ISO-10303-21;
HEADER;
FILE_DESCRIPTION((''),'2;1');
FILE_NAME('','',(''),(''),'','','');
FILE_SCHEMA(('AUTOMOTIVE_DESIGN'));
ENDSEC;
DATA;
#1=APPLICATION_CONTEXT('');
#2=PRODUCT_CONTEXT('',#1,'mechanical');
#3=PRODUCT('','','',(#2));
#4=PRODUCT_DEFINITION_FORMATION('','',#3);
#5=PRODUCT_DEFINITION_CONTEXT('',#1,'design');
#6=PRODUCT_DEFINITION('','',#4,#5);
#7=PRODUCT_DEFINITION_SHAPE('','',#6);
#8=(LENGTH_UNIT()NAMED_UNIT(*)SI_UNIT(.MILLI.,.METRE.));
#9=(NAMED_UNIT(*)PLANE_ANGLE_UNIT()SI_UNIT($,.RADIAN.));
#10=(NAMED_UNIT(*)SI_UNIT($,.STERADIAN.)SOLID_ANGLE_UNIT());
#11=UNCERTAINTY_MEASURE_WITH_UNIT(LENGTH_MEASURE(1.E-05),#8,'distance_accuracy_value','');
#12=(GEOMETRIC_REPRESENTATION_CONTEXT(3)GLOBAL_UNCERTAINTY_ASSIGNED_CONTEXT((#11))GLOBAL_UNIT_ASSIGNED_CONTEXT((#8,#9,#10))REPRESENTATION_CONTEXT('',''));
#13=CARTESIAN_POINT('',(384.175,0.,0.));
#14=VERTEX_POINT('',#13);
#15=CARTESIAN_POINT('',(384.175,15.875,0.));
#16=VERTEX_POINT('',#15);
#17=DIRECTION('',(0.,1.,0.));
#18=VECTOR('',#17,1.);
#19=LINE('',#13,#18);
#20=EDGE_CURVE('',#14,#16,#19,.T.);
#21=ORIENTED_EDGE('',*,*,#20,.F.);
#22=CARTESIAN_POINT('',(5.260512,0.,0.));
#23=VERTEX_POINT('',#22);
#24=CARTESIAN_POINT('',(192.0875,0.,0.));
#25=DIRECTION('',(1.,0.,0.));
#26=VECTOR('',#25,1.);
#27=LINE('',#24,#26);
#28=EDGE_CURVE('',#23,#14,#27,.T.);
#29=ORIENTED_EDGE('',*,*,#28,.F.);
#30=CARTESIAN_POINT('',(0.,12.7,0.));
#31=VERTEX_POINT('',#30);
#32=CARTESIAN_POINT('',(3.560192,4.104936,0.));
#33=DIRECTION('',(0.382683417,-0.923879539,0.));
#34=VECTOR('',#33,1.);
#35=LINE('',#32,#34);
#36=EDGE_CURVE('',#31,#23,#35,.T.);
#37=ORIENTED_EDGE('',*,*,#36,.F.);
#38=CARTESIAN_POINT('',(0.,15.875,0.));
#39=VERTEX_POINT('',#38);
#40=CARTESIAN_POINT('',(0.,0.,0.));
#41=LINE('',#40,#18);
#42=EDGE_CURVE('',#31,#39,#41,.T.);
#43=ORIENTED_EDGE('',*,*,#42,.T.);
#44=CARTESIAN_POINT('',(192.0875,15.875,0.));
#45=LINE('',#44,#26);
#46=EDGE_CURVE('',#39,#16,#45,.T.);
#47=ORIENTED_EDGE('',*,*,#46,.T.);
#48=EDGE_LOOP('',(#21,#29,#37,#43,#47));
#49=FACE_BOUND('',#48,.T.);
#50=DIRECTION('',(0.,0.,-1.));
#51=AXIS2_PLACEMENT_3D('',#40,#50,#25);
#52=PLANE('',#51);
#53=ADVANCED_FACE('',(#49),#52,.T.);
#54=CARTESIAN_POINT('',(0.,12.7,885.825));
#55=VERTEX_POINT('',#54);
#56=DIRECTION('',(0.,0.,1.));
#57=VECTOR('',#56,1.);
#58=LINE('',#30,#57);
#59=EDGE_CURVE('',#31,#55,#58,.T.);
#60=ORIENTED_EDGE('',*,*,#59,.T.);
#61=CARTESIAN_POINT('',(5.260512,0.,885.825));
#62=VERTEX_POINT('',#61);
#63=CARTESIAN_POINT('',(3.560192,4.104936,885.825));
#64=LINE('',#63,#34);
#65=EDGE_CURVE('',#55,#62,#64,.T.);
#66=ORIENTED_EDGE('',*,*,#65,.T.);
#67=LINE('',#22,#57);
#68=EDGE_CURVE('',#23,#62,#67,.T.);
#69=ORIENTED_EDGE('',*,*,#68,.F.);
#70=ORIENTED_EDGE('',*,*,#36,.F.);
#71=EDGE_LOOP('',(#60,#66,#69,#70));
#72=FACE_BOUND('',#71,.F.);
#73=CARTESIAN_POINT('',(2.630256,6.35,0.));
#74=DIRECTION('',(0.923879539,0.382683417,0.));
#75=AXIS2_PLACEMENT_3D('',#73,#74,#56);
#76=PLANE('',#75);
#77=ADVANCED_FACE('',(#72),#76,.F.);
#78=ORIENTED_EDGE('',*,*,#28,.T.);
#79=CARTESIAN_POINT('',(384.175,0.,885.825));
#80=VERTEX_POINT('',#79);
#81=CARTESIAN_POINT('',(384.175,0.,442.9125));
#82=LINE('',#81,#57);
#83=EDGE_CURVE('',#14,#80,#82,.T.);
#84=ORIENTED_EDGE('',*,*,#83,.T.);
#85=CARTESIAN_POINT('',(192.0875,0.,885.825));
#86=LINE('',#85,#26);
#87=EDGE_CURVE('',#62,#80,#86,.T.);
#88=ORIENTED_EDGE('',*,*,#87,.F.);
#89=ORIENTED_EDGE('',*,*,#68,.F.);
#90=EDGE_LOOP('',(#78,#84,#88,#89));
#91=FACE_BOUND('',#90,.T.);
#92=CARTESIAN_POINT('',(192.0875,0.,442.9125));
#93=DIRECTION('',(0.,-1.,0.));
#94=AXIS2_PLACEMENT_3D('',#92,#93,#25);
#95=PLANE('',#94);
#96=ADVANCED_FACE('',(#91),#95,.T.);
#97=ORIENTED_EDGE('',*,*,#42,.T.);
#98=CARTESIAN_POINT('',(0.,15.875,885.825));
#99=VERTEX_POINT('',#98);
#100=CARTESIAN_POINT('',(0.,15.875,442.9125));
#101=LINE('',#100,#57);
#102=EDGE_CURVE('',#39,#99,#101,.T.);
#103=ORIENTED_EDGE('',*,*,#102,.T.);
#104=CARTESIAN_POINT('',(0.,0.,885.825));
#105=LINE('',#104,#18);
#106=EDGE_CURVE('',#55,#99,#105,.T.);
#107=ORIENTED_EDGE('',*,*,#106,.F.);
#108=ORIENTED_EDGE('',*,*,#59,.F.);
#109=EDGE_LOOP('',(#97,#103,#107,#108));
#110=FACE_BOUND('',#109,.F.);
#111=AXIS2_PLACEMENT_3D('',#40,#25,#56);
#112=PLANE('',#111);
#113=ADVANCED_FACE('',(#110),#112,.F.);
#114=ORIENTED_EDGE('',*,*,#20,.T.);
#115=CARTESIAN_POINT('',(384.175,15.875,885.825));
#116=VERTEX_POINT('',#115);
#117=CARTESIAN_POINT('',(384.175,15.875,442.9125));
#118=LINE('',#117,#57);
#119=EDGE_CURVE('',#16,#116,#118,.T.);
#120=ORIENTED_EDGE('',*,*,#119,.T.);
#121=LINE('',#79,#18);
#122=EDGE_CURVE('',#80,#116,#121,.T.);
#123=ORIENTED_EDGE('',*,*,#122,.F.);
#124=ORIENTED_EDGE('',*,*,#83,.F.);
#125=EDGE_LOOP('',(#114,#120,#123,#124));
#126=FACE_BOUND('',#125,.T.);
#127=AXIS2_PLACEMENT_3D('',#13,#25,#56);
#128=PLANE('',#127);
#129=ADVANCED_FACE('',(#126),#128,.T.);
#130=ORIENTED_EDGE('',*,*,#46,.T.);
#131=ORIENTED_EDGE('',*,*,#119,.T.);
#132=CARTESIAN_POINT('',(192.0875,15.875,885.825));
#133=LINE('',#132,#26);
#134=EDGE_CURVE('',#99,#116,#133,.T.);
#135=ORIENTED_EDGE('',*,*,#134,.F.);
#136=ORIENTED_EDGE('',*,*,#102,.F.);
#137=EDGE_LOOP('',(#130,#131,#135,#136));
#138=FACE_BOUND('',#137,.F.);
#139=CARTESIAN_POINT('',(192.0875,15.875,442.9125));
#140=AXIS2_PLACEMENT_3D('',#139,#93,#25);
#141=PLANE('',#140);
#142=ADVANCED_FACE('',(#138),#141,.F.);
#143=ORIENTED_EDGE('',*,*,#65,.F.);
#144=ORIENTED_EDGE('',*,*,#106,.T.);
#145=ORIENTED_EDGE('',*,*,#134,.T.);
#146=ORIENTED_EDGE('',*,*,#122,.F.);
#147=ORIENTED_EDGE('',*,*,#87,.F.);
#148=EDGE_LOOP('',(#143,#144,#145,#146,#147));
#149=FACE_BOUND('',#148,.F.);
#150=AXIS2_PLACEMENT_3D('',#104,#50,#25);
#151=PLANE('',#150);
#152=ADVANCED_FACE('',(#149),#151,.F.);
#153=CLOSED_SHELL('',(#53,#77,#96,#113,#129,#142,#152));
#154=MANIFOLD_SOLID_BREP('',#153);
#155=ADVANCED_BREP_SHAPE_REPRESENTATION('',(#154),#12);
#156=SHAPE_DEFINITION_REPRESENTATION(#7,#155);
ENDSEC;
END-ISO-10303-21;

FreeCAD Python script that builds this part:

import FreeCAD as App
import Part
import Sketcher
from FreeCAD import Vector
Q = App.Units.Quantity


def edges_at(feature, points):
    """Names of the edges that pass closest to the given points."""
    edges = feature.Shape.Edges
    near = lambda p: min(range(len(edges)), key=lambda i: edges[i].distToShape(Part.Vertex(*p))[0])
    return sorted({f"Edge{near(p) + 1}" for p in points})

doc = App.newDocument("Part")
body = doc.addObject("PartDesign::Body", "Body")

sketch1 = body.newObject("Sketcher::SketchObject", "Sketch")
sketch1.AttachmentSupport = (doc.getObject("XZ_Plane"), [""])
sketch1.MapMode = "FlatFace"
sketch1.addGeometry([
    Part.LineSegment(Vector(0, 886, 0), Vector(0, 0, 0)),
    Part.LineSegment(Vector(0, 0, 0), Vector(384, 0, 0)),
    Part.LineSegment(Vector(384, 0, 0), Vector(384, 886, 0)),
    Part.LineSegment(Vector(384, 886, 0), Vector(0, 886, 0)),
], False)
sketch1.addConstraint([
    Sketcher.Constraint("Coincident", 0, 2, 1, 1),
    Sketcher.Constraint("Coincident", 1, 2, 2, 1),
    Sketcher.Constraint("Coincident", 2, 2, 3, 1),
    Sketcher.Constraint("Coincident", 3, 2, 0, 1),
    Sketcher.Constraint("Vertical", 0),
    Sketcher.Constraint("Horizontal", 1),
    Sketcher.Constraint("Vertical", 2),
    Sketcher.Constraint("Horizontal", 3),
    Sketcher.Constraint("Coincident", 0, 2, -1, 1),
    Sketcher.Constraint("DistanceX", 1, 1, 1, 2, Q("15.125 in")),
    Sketcher.Constraint("DistanceY", 0, 2, 0, 1, Q("34.875 in")),
])
pad1 = body.newObject("PartDesign::Pad", "Pad")
pad1.Profile = sketch1
pad1.Length = Q("0.625 in")
pad1.Reversed = True
doc.recompute()

chamfer = body.newObject("PartDesign::Chamfer", "Chamfer")
chamfer.Base = (pad1, edges_at(pad1, [(0, 0, 442.913)]))
chamfer.ChamferType = "Two distances"
chamfer.Size = Q("0.5 in")
chamfer.Size2 = 5.260512

doc.recompute()
